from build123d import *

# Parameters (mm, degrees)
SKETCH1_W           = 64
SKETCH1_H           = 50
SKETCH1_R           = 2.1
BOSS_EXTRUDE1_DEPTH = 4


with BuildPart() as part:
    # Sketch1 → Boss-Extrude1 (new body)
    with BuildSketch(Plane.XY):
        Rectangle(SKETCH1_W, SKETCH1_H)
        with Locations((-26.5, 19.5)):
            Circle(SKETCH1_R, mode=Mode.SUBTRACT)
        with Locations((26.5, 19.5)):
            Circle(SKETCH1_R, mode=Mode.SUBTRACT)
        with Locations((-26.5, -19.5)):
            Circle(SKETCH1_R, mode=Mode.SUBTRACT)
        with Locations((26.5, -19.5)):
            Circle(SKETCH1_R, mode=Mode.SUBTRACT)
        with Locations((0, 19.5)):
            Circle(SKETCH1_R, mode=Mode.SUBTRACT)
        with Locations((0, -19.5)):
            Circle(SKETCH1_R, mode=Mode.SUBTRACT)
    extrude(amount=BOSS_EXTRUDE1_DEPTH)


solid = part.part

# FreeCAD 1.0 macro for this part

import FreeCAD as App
import Part
import Sketcher
from FreeCAD import Vector
Q = App.Units.Quantity


def add_polygon(sketch, points):
    """Adds a closed chain of lines whose ends are joined by coincident constraints."""
    first, n = sketch.GeometryCount, len(points)
    for a, b in zip(points, points[1:] + points[:1]):
        sketch.addGeometry(Part.LineSegment(App.Vector(*a, 0), App.Vector(*b, 0)), False)
    for i in range(n):
        sketch.addConstraint(Sketcher.Constraint("Coincident", first + i, 2, first + (i + 1) % n, 1))

doc = App.newDocument("Part")
params = doc.addObject("Spreadsheet::Sheet", "Params")
for row, (alias, value) in enumerate([
    ("sketch1_diameter", "4.2 mm"),
    ("sketch1_width", "64 mm"),
    ("sketch1_height", "50 mm"),
    ("pad1_length", "4 mm"),
], start=1):
    params.set(f"A{row}", alias)
    params.set(f"B{row}", "=" + value)
    params.setAlias(f"B{row}", alias)

body = doc.addObject("PartDesign::Body", "Body")

# Sketch on XY plane
sketch1 = doc.addObject("Sketcher::SketchObject", "Sketch")
body.addObject(sketch1)
sketch1.AttachmentSupport = (doc.XY_Plane, [""])
sketch1.MapMode = "FlatFace"
add_polygon(sketch1, [(-32, 25), (-32, -25), (32, -25), (32, 25)])  # lines 0-3
sketch1.addGeometry(Part.Circle(Vector(-26.5, -19.5, 0), Vector(0, 0, 1), 2.1), False)  # 4
sketch1.addGeometry(Part.Circle(Vector(0, -19.5, 0), Vector(0, 0, 1), 2.1), False)  # 5
sketch1.addGeometry(Part.Circle(Vector(26.5, -19.5, 0), Vector(0, 0, 1), 2.1), False)  # 6
sketch1.addGeometry(Part.Circle(Vector(-26.5, 19.5, 0), Vector(0, 0, 1), 2.1), False)  # 7
sketch1.addGeometry(Part.Circle(Vector(0, 19.5, 0), Vector(0, 0, 1), 2.1), False)  # 8
sketch1.addGeometry(Part.Circle(Vector(26.5, 19.5, 0), Vector(0, 0, 1), 2.1), False)  # 9
sketch1.addConstraint([
    Sketcher.Constraint("Vertical", 0),
    Sketcher.Constraint("Horizontal", 1),
    Sketcher.Constraint("Vertical", 2),
    Sketcher.Constraint("Horizontal", 3),
    Sketcher.Constraint("Equal", 4, 5),
    Sketcher.Constraint("Equal", 5, 6),
    Sketcher.Constraint("Equal", 6, 7),
    Sketcher.Constraint("Equal", 7, 8),
    Sketcher.Constraint("Equal", 8, 9),
    Sketcher.Constraint("Symmetric", 6, 3, 7, 3, -1, 1),
    Sketcher.Constraint("Symmetric", 5, 3, 8, 3, -1, 1),
    Sketcher.Constraint("Symmetric", 4, 3, 9, 3, -1, 1),
    Sketcher.Constraint("Symmetric", 0, 2, 2, 2, -1, 1),
    Sketcher.Constraint("Symmetric", 4, 3, 6, 3, -2),
    Sketcher.Constraint("PointOnObject", 5, 3, -2),
    Sketcher.Constraint("Horizontal", 4, 3, 5, 3),
    Sketcher.Constraint("Diameter", 4, Q("4.2 mm")),
    Sketcher.Constraint("DistanceX", 1, 1, 1, 2, Q("64 mm")),
    Sketcher.Constraint("DistanceY", 0, 2, 0, 1, Q("50 mm")),
    Sketcher.Constraint("DistanceX", 4, 3, 6, 3, Q("53 mm")),
    Sketcher.Constraint("DistanceY", 4, 3, 7, 3, Q("39 mm")),
])
sketch1.setExpression("Constraints[20]", "Params.sketch1_diameter")
sketch1.setExpression("Constraints[21]", "Params.sketch1_width")
sketch1.setExpression("Constraints[22]", "Params.sketch1_height")
pad1 = doc.addObject("PartDesign::Pad", "Pad")
body.addObject(pad1)
pad1.Profile = sketch1
pad1.setExpression("Length", "Params.pad1_length")

doc.recompute()
